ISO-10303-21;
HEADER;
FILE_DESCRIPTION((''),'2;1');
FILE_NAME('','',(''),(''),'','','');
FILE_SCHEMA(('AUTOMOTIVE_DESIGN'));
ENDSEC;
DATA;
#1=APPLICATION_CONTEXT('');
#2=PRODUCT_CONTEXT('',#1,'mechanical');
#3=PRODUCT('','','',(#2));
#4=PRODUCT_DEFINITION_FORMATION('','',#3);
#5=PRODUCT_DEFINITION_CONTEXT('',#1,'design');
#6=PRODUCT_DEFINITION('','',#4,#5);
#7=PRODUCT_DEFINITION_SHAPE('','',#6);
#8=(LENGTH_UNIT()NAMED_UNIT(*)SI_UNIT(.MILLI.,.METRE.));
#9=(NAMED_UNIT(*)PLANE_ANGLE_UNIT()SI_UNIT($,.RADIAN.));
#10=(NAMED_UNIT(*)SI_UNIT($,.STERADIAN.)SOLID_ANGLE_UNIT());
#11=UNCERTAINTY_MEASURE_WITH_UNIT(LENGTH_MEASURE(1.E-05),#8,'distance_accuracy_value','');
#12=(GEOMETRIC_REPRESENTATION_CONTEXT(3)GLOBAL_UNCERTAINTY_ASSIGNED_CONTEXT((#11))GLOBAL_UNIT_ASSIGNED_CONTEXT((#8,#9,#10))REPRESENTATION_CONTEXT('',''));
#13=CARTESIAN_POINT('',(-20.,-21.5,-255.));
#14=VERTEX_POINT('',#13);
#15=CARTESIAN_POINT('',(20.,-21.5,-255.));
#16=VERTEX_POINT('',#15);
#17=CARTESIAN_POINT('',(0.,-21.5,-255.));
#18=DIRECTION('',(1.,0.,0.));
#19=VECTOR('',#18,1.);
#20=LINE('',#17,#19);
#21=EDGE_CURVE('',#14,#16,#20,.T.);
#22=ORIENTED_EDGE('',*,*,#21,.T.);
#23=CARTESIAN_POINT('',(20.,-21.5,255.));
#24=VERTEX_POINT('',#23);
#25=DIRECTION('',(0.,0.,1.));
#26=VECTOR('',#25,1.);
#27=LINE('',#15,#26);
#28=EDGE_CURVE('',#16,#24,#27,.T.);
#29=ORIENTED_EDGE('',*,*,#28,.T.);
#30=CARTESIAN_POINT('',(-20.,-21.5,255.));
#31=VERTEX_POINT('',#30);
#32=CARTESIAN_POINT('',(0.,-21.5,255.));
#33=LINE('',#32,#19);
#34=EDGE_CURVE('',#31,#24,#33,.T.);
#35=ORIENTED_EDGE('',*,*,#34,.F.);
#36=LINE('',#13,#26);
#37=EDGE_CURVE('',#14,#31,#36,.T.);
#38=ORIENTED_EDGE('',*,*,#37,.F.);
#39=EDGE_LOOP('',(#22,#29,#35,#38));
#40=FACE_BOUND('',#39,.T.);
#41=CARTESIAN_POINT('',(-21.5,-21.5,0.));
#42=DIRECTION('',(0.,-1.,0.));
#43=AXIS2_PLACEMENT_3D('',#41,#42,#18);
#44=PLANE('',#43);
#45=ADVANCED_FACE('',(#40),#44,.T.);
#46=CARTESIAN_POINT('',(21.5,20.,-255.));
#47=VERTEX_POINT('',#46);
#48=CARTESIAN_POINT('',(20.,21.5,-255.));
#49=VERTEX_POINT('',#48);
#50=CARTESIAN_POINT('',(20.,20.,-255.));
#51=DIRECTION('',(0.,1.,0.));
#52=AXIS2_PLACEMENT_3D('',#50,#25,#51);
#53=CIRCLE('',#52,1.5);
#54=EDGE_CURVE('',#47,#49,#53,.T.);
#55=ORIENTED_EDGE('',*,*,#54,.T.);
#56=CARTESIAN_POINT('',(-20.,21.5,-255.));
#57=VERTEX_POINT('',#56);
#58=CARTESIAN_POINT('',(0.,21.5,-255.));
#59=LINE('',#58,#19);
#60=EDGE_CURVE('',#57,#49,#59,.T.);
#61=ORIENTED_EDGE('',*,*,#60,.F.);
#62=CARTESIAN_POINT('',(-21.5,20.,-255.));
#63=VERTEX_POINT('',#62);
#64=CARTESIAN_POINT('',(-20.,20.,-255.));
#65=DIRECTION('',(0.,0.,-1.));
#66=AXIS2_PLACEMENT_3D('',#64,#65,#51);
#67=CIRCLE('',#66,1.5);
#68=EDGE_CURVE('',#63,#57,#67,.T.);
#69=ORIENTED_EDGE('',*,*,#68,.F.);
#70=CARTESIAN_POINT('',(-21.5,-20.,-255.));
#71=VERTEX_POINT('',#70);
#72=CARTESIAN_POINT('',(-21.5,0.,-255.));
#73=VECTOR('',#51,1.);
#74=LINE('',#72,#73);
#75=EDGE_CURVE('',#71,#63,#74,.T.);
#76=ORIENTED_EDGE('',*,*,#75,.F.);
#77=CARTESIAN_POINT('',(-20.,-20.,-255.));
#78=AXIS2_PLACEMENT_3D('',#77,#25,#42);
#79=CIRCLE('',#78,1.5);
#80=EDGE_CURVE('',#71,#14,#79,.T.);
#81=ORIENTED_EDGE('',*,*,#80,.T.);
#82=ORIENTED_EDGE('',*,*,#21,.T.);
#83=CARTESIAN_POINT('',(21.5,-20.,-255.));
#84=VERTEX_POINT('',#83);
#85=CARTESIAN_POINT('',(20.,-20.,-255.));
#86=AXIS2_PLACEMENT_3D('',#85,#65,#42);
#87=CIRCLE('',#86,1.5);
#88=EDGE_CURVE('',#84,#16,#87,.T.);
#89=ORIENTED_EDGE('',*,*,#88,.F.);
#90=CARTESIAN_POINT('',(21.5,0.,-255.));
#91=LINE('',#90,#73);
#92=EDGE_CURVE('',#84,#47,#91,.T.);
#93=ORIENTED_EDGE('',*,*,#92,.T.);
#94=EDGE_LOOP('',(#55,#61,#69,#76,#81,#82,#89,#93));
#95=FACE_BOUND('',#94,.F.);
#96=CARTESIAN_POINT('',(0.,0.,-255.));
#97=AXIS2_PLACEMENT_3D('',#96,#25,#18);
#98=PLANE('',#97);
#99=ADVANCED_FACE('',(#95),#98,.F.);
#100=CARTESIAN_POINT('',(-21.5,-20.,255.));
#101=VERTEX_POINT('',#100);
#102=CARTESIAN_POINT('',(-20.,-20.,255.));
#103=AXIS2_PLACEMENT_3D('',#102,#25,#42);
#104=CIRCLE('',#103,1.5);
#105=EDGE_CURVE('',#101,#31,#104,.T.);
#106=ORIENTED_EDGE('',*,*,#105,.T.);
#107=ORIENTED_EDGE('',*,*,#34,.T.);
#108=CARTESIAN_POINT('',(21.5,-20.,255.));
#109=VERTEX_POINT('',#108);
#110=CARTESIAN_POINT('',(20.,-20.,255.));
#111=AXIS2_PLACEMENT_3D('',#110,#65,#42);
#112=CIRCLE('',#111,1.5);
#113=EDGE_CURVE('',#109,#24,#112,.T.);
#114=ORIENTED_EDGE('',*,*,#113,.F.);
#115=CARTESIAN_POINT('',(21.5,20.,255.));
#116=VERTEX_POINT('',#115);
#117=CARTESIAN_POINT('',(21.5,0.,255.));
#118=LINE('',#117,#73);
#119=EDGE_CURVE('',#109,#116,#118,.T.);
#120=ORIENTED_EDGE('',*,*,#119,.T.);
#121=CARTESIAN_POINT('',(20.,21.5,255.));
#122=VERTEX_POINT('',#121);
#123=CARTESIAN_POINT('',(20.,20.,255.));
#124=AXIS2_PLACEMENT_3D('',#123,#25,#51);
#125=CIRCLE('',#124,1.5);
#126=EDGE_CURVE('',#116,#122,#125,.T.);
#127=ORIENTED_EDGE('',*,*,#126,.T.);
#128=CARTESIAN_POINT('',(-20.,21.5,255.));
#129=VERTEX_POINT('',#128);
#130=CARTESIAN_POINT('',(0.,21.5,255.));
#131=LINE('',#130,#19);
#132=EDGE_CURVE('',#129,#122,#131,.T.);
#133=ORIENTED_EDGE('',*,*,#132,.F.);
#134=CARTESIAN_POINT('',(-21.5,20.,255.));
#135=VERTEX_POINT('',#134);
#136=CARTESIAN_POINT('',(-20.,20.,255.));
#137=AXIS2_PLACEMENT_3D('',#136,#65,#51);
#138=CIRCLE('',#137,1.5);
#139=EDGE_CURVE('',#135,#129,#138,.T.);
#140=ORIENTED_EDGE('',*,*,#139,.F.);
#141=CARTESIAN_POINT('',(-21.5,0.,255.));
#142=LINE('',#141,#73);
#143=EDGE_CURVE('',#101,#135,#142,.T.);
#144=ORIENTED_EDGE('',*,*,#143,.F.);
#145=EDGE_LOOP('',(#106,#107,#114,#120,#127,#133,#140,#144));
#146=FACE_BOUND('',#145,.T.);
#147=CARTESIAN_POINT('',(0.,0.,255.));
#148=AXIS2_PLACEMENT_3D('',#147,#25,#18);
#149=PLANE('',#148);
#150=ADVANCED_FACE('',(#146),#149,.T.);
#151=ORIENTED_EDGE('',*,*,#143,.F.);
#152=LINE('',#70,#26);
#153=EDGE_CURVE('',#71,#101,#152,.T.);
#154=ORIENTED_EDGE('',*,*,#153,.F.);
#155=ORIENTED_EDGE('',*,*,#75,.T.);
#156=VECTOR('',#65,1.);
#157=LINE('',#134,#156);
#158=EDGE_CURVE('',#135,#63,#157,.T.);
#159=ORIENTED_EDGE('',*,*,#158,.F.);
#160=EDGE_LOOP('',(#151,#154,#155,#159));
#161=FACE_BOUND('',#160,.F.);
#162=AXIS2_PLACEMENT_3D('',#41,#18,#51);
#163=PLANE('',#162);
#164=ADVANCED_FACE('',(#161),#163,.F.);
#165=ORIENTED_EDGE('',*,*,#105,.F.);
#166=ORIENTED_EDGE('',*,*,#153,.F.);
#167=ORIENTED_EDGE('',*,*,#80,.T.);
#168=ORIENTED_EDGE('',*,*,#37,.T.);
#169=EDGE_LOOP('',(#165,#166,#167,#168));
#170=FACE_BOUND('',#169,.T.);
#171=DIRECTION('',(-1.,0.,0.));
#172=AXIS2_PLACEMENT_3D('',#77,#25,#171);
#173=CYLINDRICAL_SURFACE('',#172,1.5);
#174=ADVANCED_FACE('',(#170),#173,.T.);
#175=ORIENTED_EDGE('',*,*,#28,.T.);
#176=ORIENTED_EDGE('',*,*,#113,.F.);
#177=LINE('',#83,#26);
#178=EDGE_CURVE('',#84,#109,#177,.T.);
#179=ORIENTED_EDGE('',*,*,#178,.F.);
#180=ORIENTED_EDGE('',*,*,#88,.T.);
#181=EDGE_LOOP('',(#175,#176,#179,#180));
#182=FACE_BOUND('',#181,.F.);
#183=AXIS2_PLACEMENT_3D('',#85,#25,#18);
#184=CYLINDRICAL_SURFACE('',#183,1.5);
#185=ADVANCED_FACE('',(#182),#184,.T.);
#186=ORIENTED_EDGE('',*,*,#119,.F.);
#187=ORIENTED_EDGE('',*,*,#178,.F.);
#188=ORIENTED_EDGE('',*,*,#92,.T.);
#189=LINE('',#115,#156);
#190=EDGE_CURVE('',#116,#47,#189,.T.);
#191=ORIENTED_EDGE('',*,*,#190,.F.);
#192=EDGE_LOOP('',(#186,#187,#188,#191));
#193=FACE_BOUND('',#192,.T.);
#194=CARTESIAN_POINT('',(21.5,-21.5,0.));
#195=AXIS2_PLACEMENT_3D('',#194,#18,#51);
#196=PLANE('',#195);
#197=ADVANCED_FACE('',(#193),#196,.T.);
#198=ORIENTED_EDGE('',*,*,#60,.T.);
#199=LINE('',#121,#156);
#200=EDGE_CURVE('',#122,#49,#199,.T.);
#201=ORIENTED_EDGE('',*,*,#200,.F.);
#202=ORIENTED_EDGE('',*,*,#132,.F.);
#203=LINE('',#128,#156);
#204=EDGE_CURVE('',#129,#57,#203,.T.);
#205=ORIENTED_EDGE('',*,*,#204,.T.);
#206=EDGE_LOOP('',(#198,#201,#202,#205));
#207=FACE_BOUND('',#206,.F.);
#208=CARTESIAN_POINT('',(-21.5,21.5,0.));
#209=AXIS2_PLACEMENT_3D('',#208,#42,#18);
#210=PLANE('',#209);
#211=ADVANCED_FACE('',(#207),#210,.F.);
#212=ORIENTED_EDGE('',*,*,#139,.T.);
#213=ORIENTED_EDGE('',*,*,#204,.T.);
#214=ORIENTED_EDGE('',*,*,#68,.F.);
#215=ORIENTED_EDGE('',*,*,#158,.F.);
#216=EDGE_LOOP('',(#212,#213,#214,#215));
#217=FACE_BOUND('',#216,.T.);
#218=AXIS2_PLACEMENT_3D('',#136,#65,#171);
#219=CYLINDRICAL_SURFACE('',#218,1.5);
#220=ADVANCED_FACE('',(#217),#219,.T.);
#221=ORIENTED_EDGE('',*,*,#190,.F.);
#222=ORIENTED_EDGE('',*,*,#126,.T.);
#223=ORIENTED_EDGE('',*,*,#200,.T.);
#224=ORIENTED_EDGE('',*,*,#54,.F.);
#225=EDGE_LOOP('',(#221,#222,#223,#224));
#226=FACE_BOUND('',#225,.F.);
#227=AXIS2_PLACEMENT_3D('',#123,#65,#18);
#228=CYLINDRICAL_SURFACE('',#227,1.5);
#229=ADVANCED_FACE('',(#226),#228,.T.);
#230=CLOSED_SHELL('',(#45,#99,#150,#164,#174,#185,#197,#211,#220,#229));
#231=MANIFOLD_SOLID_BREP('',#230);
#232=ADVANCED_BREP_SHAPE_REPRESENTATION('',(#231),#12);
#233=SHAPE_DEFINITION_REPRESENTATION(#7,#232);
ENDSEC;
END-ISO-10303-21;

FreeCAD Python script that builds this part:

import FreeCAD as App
import Part
import Sketcher
from FreeCAD import Vector


def edges_at(feature, points):
    """Names of the edges that pass closest to the given points."""
    edges = feature.Shape.Edges
    near = lambda p: min(range(len(edges)), key=lambda i: edges[i].distToShape(Part.Vertex(*p))[0])
    return sorted({f"Edge{near(p) + 1}" for p in points})


def add_polygon(sketch, points):
    """Adds a closed chain of lines whose ends are joined by coincident constraints."""
    first, n = sketch.GeometryCount, len(points)
    for a, b in zip(points, points[1:] + points[:1]):
        sketch.addGeometry(Part.LineSegment(App.Vector(*a, 0), App.Vector(*b, 0)), False)
    for i in range(n):
        sketch.addConstraint(Sketcher.Constraint("Coincident", first + i, 2, first + (i + 1) % n, 1))

doc = App.newDocument("Part")
params = doc.addObject("Spreadsheet::Sheet", "Params")
for row, (alias, value) in enumerate([
    ("sketch1_width", "43 mm"),
    ("pad1_length", "510 mm"),
    ("fillet_radius", "1.5 mm"),
], start=1):
    params.set(f"A{row}", alias)
    params.set(f"B{row}", "=" + value)
    params.setAlias(f"B{row}", alias)

body = doc.addObject("PartDesign::Body", "Body")

sketch1 = body.newObject("Sketcher::SketchObject", "Sketch")
sketch1.AttachmentSupport = (doc.getObject("XY_Plane"), [""])
sketch1.MapMode = "FlatFace"
add_polygon(sketch1, [(-22, 22), (-22, -22), (22, -22), (22, 22)])
sketch1.addConstraint(Sketcher.Constraint("Vertical", 0))
sketch1.addConstraint(Sketcher.Constraint("Horizontal", 1))
sketch1.addConstraint(Sketcher.Constraint("Vertical", 2))
sketch1.addConstraint(Sketcher.Constraint("Horizontal", 3))
sketch1.addConstraint(Sketcher.Constraint("Symmetric", 0, 2, 2, 2, -1, 1))
sketch1.addConstraint(Sketcher.Constraint("Equal", 3, 0))
sketch1.addConstraint(Sketcher.Constraint("DistanceX", 1, 1, 1, 2, 43.0))
sketch1.setExpression("Constraints[10]", "Params.sketch1_width")
pad1 = body.newObject("PartDesign::Pad", "Pad")
pad1.Profile = sketch1
pad1.setExpression("Length", "Params.pad1_length")
pad1.Midplane = True
doc.recompute()

fillet = body.newObject("PartDesign::Fillet", "Fillet")
fillet.Base = (pad1, edges_at(pad1, [
    (21.5, -21.5, 0),
    (21.5, 21.5, 0),
    (-21.5, -21.5, 0),
    (-21.5, 21.5, 0),
]))
fillet.setExpression("Radius", "Params.fillet_radius")

doc.recompute()
